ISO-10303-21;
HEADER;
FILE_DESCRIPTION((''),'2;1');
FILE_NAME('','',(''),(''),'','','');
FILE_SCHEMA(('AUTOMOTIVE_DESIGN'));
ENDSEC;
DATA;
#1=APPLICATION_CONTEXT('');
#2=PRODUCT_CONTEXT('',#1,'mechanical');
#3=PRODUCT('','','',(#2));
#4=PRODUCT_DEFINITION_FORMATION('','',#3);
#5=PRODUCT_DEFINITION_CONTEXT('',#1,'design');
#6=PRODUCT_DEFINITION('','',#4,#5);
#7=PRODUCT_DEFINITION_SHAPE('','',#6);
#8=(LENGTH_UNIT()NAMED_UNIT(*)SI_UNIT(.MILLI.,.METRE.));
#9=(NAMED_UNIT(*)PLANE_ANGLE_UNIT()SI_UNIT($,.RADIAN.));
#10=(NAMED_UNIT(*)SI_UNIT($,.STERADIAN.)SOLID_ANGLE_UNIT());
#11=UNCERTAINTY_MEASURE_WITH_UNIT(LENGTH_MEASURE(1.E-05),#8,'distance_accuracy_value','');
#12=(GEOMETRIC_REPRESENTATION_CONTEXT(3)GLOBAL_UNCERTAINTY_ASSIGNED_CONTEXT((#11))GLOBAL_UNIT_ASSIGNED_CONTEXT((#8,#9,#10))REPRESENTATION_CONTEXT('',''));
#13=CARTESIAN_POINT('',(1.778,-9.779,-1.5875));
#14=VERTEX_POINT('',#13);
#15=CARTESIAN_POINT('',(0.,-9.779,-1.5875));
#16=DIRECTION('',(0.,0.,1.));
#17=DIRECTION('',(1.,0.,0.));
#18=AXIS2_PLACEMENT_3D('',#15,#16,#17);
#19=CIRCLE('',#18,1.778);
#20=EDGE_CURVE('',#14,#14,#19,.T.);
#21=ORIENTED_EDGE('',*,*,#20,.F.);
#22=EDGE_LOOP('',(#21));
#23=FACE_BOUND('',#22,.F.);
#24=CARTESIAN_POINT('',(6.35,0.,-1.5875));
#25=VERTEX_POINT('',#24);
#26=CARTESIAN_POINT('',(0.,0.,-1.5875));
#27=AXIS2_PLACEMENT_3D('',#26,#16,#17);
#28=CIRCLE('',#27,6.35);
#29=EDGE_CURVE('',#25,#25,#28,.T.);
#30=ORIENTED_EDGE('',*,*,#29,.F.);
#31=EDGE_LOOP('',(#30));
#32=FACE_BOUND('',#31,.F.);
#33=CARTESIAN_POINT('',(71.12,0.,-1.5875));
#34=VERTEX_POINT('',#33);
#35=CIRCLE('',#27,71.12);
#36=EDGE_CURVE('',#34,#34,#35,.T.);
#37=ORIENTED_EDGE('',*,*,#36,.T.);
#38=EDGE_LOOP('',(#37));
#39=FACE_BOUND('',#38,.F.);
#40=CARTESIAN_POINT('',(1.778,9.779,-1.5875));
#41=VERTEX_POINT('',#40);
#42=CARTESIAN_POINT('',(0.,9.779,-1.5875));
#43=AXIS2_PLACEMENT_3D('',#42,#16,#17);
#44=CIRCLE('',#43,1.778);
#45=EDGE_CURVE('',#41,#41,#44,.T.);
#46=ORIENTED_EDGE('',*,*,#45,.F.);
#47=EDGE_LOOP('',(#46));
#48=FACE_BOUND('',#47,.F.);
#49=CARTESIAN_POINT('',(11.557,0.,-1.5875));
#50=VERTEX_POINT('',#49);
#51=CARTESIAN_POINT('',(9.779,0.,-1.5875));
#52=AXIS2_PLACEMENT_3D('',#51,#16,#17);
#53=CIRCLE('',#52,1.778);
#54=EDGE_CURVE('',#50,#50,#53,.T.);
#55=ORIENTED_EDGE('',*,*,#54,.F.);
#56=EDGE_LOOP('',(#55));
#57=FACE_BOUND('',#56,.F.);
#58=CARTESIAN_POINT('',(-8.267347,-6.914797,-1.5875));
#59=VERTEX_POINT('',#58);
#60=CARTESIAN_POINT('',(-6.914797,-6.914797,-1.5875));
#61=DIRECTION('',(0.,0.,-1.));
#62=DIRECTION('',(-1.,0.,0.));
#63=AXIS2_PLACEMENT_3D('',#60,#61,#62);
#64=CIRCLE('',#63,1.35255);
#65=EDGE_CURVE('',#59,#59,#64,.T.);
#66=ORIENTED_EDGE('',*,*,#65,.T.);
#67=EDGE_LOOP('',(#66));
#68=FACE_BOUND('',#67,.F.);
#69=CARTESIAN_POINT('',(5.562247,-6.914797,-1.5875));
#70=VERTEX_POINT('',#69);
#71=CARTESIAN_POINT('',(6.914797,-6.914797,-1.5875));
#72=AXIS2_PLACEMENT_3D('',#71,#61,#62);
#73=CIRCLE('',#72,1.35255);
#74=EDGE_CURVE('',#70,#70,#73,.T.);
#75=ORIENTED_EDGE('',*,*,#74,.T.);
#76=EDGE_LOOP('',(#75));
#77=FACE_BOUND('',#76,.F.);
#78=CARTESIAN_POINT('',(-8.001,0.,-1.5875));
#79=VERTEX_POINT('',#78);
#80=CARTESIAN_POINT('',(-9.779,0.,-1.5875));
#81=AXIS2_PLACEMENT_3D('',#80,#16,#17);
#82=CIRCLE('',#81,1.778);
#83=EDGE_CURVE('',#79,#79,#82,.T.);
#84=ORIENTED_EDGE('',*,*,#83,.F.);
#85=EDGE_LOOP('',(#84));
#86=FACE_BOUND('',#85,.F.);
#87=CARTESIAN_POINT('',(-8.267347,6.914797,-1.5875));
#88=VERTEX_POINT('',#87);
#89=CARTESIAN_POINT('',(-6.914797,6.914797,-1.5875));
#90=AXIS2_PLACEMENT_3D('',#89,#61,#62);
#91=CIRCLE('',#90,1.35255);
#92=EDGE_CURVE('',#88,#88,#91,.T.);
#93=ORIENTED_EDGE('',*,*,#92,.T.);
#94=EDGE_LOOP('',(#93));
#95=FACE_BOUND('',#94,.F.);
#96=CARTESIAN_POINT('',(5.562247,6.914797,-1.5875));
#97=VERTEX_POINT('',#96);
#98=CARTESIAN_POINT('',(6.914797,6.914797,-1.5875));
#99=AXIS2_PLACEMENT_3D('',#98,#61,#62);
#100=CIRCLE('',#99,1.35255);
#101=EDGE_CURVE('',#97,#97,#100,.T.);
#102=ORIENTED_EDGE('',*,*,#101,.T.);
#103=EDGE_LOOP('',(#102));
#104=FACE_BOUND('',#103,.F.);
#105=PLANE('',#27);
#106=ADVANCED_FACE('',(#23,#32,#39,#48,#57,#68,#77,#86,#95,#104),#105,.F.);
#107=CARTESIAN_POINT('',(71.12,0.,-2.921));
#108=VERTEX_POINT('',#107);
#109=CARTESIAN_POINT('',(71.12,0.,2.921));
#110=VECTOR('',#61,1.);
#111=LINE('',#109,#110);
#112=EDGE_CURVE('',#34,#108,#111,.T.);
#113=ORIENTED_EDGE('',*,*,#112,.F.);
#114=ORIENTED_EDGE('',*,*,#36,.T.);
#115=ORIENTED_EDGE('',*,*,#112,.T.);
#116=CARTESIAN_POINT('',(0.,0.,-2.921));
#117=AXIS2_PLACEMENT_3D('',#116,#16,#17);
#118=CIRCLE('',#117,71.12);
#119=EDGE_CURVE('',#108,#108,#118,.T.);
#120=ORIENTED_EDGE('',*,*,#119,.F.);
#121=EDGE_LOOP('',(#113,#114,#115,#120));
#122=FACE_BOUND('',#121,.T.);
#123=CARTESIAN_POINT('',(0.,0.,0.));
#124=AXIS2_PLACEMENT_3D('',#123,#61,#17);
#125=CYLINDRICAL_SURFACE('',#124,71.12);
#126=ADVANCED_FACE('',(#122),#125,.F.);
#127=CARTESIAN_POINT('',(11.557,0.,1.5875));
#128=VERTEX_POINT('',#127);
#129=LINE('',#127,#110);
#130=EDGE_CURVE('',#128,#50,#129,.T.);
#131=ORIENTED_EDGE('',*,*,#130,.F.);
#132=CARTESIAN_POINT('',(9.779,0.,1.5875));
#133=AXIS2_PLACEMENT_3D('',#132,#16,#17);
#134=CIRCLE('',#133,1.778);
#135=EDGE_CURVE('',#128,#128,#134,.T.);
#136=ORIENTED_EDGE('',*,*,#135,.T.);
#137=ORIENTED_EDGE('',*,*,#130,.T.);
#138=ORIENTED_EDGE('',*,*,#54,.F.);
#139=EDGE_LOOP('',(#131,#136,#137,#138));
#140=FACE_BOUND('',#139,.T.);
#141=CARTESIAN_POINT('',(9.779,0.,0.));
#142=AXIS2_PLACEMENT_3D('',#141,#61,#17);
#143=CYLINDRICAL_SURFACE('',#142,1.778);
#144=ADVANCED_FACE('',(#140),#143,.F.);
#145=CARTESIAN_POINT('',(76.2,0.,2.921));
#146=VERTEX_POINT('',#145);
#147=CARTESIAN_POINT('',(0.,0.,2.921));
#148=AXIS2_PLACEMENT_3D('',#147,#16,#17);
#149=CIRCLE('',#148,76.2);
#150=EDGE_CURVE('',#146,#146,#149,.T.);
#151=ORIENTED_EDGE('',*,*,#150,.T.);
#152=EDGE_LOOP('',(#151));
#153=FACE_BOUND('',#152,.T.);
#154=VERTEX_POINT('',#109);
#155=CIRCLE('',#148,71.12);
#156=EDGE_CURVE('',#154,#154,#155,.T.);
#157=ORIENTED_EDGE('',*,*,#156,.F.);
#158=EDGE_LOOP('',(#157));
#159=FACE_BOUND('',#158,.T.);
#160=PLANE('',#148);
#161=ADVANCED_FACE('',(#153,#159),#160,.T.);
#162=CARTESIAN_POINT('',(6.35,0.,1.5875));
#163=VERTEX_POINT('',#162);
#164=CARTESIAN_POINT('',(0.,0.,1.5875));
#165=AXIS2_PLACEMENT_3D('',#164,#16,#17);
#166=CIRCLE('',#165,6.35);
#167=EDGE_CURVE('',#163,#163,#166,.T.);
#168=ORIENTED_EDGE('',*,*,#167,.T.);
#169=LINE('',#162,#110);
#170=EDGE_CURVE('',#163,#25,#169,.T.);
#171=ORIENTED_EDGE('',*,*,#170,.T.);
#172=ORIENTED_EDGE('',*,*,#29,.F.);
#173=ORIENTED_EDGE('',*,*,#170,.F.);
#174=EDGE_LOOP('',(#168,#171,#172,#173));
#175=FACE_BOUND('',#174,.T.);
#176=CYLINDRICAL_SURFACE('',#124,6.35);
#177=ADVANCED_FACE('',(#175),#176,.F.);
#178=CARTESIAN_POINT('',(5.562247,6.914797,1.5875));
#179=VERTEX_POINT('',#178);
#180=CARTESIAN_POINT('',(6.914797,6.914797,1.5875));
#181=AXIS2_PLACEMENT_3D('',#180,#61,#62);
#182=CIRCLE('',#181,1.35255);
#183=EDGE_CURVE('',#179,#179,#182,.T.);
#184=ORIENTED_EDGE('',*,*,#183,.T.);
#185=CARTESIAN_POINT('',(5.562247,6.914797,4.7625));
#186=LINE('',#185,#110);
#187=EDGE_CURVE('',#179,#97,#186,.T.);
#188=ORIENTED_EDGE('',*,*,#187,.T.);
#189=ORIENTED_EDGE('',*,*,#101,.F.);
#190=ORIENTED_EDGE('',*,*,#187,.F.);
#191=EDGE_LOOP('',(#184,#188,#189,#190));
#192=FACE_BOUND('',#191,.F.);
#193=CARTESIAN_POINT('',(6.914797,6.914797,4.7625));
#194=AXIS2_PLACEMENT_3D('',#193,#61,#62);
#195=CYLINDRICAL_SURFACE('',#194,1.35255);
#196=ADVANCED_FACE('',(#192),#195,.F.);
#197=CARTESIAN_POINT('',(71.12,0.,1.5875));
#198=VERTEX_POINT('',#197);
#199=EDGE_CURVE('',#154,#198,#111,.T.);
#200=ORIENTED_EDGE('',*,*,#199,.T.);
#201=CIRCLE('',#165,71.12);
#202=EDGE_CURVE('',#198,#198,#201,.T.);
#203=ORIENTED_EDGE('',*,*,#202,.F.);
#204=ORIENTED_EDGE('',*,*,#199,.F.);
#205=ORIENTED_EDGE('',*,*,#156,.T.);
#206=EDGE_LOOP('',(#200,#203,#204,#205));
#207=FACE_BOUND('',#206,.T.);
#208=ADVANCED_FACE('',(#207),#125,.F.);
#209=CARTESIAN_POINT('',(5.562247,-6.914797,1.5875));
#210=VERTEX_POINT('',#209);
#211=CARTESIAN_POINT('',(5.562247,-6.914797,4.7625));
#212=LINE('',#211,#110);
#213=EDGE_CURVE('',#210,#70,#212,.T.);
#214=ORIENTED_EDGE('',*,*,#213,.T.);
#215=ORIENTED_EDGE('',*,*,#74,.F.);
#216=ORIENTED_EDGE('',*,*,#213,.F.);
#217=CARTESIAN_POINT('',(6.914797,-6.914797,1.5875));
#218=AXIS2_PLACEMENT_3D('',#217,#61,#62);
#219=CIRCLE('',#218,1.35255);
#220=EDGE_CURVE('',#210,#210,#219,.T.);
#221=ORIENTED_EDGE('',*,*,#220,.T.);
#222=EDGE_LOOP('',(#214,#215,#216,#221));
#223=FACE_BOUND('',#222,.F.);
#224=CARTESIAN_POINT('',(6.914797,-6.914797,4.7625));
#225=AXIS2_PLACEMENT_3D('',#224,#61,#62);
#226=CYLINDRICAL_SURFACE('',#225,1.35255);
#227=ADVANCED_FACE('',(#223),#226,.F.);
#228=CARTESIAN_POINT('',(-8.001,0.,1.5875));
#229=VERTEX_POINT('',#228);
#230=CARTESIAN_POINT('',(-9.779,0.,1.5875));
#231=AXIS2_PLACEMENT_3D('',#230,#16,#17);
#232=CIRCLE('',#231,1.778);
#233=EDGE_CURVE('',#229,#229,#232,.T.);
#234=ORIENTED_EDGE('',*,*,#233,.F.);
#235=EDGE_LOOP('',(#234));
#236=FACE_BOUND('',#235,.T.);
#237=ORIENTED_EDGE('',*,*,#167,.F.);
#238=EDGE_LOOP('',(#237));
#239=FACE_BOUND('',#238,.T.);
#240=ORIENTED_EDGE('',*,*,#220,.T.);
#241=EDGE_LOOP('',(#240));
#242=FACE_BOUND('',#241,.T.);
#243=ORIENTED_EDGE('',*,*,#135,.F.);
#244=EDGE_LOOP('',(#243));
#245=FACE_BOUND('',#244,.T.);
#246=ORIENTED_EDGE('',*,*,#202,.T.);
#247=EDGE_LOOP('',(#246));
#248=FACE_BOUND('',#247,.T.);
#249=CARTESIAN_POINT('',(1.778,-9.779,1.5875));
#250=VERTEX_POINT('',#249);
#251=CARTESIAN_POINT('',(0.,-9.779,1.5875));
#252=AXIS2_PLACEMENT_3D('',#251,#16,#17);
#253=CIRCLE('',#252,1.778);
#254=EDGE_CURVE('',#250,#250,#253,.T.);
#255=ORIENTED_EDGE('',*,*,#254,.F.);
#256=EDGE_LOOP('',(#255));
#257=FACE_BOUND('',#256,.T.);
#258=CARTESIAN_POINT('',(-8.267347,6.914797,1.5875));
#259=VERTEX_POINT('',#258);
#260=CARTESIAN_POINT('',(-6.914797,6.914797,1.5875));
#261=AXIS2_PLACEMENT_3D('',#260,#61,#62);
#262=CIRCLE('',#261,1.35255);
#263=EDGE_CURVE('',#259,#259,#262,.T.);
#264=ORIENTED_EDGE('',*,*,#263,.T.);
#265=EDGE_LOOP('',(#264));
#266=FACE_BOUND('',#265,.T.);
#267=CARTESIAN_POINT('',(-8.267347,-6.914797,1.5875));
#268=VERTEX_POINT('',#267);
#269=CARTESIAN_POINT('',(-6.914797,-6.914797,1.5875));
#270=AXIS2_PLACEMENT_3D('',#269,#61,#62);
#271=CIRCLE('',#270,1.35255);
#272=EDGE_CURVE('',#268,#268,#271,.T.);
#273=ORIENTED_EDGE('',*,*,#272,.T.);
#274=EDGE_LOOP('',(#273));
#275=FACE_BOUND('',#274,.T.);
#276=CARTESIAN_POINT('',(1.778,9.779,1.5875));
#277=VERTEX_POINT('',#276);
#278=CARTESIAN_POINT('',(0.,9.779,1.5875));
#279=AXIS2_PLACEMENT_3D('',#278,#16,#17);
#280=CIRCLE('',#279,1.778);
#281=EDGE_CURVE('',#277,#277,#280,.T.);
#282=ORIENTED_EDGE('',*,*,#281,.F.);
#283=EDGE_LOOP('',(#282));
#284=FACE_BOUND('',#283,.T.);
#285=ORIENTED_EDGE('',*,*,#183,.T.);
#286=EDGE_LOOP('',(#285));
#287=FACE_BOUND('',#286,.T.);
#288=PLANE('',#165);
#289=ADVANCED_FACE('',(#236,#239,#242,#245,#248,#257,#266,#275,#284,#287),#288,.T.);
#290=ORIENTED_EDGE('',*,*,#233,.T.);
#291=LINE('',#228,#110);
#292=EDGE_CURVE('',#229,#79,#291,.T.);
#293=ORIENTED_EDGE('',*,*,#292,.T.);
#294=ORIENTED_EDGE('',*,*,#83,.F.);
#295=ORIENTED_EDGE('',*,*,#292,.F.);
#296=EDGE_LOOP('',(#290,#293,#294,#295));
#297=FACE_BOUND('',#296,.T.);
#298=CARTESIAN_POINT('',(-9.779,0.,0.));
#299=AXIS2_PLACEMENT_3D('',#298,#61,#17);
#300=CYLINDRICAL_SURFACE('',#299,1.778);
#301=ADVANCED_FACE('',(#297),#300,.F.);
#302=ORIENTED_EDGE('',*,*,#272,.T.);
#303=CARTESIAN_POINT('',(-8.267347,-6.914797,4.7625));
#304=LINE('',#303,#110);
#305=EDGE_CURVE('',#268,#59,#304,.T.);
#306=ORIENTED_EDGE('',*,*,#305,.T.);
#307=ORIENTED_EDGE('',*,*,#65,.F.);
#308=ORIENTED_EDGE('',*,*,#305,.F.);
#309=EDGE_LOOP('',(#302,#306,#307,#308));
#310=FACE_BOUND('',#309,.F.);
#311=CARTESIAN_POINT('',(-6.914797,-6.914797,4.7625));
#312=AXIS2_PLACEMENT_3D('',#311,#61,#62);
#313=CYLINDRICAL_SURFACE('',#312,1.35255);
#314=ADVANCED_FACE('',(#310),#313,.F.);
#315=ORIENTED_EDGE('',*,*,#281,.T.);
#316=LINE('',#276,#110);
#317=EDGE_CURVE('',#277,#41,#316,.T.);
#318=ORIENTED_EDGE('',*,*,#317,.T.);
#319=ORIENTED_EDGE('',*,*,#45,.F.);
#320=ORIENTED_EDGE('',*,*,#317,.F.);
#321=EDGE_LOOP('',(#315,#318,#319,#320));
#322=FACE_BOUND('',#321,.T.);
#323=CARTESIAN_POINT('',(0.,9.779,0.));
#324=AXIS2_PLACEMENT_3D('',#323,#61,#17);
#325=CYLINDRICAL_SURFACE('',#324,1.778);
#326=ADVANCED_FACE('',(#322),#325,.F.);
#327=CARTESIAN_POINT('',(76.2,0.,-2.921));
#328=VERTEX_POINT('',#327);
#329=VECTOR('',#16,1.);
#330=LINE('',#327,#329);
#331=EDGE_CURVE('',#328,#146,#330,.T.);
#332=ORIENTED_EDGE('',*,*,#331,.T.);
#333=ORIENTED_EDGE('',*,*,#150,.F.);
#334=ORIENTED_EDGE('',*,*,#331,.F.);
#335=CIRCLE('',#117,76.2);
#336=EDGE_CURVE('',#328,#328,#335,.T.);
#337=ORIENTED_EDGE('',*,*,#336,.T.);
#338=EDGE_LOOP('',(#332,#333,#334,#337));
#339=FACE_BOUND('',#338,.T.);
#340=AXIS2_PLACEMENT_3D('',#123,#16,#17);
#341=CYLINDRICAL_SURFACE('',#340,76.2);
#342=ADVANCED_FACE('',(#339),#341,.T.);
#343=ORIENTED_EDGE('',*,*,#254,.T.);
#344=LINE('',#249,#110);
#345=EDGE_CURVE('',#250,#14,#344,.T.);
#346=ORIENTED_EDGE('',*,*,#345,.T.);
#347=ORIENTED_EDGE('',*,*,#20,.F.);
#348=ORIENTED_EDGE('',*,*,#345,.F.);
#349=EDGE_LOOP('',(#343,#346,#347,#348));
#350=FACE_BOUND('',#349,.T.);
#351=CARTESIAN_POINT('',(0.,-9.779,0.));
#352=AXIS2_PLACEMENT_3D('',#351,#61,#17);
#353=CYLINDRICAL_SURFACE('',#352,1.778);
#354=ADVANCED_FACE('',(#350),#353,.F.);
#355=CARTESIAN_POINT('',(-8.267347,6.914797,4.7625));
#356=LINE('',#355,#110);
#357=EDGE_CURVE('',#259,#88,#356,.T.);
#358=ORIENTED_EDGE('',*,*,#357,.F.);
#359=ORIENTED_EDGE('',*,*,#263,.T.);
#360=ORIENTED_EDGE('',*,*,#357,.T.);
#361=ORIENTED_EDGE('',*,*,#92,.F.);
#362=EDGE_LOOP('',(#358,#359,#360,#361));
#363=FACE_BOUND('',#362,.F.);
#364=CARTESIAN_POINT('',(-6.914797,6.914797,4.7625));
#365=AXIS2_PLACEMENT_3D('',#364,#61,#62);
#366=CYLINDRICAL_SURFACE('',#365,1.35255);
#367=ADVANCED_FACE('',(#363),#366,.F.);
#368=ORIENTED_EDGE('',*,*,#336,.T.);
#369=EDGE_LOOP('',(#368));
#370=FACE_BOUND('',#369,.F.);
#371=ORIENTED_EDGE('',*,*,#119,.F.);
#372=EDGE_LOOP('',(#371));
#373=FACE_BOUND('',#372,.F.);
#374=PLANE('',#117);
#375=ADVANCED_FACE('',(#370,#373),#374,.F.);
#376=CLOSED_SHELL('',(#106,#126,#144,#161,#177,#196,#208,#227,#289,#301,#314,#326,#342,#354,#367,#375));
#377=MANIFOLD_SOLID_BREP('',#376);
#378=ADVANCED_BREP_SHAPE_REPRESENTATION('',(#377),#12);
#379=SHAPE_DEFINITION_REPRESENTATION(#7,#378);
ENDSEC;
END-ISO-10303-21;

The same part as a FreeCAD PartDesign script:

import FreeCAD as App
import Part
import Sketcher
Q = App.Units.Quantity

doc = App.newDocument("Part")
params = doc.addObject("Spreadsheet::Sheet", "Params")
for row, (alias, value) in enumerate([
    ("sketch1_diameter", "6 in"),
    ("sketch1_diameter2", "5.6 in"),
    ("pad1_length", "0.23 in"),
    ("sketch2_diameter", "5.6 in"),
    ("sketch2_diameter2", "0.5 in"),
    ("sketch2_diameter3", "0.14 in"),
    ("pad2_length", "0.125 in"),
    ("hole_diameter", "0.1065 in"),
    ("hole_depth", "0.125 in"),
], start=1):
    params.set(f"A{row}", alias)
    params.set(f"B{row}", "=" + value)
    params.setAlias(f"B{row}", alias)

body = doc.addObject("PartDesign::Body", "Body")

sketch1 = doc.addObject("Sketcher::SketchObject", "Sketch")
body.addObject(sketch1)
sketch1.AttachmentSupport = (doc.XY_Plane, [""])
sketch1.MapMode = "FlatFace"
sketch1.addGeometry(Part.Circle(App.Vector(0, 0, 0), App.Vector(0, 0, 1), 76), False)
sketch1.addGeometry(Part.Circle(App.Vector(0, 0, 0), App.Vector(0, 0, 1), 71), False)
sketch1.addConstraint(Sketcher.Constraint("Coincident", 0, 3, -1, 1))
sketch1.addConstraint(Sketcher.Constraint("Coincident", 1, 3, -1, 1))
sketch1.addConstraint(Sketcher.Constraint("Diameter", 0, Q("6 in")))
sketch1.addConstraint(Sketcher.Constraint("Diameter", 1, Q("5.6 in")))
sketch1.setExpression("Constraints[2]", "Params.sketch1_diameter")
sketch1.setExpression("Constraints[3]", "Params.sketch1_diameter2")
pad1 = doc.addObject("PartDesign::Pad", "Pad")
body.addObject(pad1)
pad1.Profile = sketch1
pad1.setExpression("Length", "Params.pad1_length")
pad1.Midplane = True

sketch2 = doc.addObject("Sketcher::SketchObject", "Sketch001")
body.addObject(sketch2)
sketch2.AttachmentSupport = (doc.XY_Plane, [""])
sketch2.MapMode = "FlatFace"
sketch2.addGeometry(Part.Circle(App.Vector(0, 0, 0), App.Vector(0, 0, 1), 71.1), False)
sketch2.addGeometry(Part.Circle(App.Vector(0, -9.8, 0), App.Vector(0, 0, 1), 1.8), False)
sketch2.addGeometry(Part.Circle(App.Vector(-9.8, 0, 0), App.Vector(0, 0, 1), 1.8), False)
sketch2.addGeometry(Part.Circle(App.Vector(0, 0, 0), App.Vector(0, 0, 1), 6.3), False)
sketch2.addGeometry(Part.Circle(App.Vector(9.8, 0, 0), App.Vector(0, 0, 1), 1.8), False)
sketch2.addGeometry(Part.Circle(App.Vector(0, 9.8, 0), App.Vector(0, 0, 1), 1.8), False)
sketch2.addConstraint(Sketcher.Constraint("Coincident", 0, 3, -1, 1))
sketch2.addConstraint(Sketcher.Constraint("Coincident", 3, 3, -1, 1))
sketch2.addConstraint(Sketcher.Constraint("Equal", 1, 2))
sketch2.addConstraint(Sketcher.Constraint("Equal", 2, 4))
sketch2.addConstraint(Sketcher.Constraint("Equal", 4, 5))
sketch2.addConstraint(Sketcher.Constraint("Symmetric", 2, 3, 4, 3, -1, 1))
sketch2.addConstraint(Sketcher.Constraint("Symmetric", 1, 3, 5, 3, -1, 1))
sketch2.addConstraint(Sketcher.Constraint("PointOnObject", 1, 3, -2))
sketch2.addConstraint(Sketcher.Constraint("PointOnObject", 2, 3, -1))
sketch2.addConstraint(Sketcher.Constraint("Diameter", 0, Q("5.6 in")))
sketch2.addConstraint(Sketcher.Constraint("Diameter", 3, Q("0.5 in")))
sketch2.addConstraint(Sketcher.Constraint("Diameter", 1, Q("0.14 in")))
sketch2.addConstraint(Sketcher.Constraint("DistanceX", 2, 3, 4, 3, Q("0.77 in")))
sketch2.addConstraint(Sketcher.Constraint("DistanceY", 1, 3, 5, 3, Q("0.77 in")))
sketch2.setExpression("Constraints[9]", "Params.sketch2_diameter")
sketch2.setExpression("Constraints[10]", "Params.sketch2_diameter2")
sketch2.setExpression("Constraints[11]", "Params.sketch2_diameter3")
pad2 = doc.addObject("PartDesign::Pad", "Pad001")
body.addObject(pad2)
pad2.Profile = sketch2
pad2.setExpression("Length", "Params.pad2_length")
pad2.Midplane = True

sketch3 = doc.addObject("Sketcher::SketchObject", "Sketch002")
body.addObject(sketch3)
sketch3.AttachmentSupport = (doc.XY_Plane, [""])
sketch3.MapMode = "FlatFace"
sketch3.AttachmentOffset = App.Placement(App.Vector(0, 0, 0.0625 * 25.4), App.Rotation())
sketch3.addGeometry(Part.Circle(App.Vector(-6.9, 6.9, 0), App.Vector(0, 0, 1), 1.4), False)
sketch3.addGeometry(Part.Circle(App.Vector(6.9, 6.9, 0), App.Vector(0, 0, 1), 1.4), False)
sketch3.addGeometry(Part.Circle(App.Vector(6.9, -6.9, 0), App.Vector(0, 0, 1), 1.4), False)
sketch3.addGeometry(Part.Circle(App.Vector(-6.9, -6.9, 0), App.Vector(0, 0, 1), 1.4), False)
sketch3.addConstraint(Sketcher.Constraint("Equal", 0, 1))
sketch3.addConstraint(Sketcher.Constraint("Equal", 1, 2))
sketch3.addConstraint(Sketcher.Constraint("Equal", 2, 3))
sketch3.addConstraint(Sketcher.Constraint("Symmetric", 0, 3, 2, 3, -1, 1))
sketch3.addConstraint(Sketcher.Constraint("Symmetric", 1, 3, 3, 3, -1, 1))
sketch3.addConstraint(Sketcher.Constraint("Symmetric", 0, 3, 1, 3, -2))
sketch3.addConstraint(Sketcher.Constraint("Diameter", 0, Q("0.1065 in")))
sketch3.addConstraint(Sketcher.Constraint("DistanceX", 0, 3, -1, 1, Q("6.914797 mm")))
sketch3.addConstraint(Sketcher.Constraint("DistanceY", -1, 1, 0, 3, Q("6.914797 mm")))
doc.recompute()
hole = doc.addObject("PartDesign::Hole", "Hole")
body.addObject(hole)
hole.Profile = sketch3
hole.ThreadType = "None"
hole.setExpression("Diameter", "Params.hole_diameter")
hole.DepthType = "Dimension"
hole.setExpression("Depth", "Params.hole_depth")
hole.DrillPoint = "Flat"

doc.recompute()
